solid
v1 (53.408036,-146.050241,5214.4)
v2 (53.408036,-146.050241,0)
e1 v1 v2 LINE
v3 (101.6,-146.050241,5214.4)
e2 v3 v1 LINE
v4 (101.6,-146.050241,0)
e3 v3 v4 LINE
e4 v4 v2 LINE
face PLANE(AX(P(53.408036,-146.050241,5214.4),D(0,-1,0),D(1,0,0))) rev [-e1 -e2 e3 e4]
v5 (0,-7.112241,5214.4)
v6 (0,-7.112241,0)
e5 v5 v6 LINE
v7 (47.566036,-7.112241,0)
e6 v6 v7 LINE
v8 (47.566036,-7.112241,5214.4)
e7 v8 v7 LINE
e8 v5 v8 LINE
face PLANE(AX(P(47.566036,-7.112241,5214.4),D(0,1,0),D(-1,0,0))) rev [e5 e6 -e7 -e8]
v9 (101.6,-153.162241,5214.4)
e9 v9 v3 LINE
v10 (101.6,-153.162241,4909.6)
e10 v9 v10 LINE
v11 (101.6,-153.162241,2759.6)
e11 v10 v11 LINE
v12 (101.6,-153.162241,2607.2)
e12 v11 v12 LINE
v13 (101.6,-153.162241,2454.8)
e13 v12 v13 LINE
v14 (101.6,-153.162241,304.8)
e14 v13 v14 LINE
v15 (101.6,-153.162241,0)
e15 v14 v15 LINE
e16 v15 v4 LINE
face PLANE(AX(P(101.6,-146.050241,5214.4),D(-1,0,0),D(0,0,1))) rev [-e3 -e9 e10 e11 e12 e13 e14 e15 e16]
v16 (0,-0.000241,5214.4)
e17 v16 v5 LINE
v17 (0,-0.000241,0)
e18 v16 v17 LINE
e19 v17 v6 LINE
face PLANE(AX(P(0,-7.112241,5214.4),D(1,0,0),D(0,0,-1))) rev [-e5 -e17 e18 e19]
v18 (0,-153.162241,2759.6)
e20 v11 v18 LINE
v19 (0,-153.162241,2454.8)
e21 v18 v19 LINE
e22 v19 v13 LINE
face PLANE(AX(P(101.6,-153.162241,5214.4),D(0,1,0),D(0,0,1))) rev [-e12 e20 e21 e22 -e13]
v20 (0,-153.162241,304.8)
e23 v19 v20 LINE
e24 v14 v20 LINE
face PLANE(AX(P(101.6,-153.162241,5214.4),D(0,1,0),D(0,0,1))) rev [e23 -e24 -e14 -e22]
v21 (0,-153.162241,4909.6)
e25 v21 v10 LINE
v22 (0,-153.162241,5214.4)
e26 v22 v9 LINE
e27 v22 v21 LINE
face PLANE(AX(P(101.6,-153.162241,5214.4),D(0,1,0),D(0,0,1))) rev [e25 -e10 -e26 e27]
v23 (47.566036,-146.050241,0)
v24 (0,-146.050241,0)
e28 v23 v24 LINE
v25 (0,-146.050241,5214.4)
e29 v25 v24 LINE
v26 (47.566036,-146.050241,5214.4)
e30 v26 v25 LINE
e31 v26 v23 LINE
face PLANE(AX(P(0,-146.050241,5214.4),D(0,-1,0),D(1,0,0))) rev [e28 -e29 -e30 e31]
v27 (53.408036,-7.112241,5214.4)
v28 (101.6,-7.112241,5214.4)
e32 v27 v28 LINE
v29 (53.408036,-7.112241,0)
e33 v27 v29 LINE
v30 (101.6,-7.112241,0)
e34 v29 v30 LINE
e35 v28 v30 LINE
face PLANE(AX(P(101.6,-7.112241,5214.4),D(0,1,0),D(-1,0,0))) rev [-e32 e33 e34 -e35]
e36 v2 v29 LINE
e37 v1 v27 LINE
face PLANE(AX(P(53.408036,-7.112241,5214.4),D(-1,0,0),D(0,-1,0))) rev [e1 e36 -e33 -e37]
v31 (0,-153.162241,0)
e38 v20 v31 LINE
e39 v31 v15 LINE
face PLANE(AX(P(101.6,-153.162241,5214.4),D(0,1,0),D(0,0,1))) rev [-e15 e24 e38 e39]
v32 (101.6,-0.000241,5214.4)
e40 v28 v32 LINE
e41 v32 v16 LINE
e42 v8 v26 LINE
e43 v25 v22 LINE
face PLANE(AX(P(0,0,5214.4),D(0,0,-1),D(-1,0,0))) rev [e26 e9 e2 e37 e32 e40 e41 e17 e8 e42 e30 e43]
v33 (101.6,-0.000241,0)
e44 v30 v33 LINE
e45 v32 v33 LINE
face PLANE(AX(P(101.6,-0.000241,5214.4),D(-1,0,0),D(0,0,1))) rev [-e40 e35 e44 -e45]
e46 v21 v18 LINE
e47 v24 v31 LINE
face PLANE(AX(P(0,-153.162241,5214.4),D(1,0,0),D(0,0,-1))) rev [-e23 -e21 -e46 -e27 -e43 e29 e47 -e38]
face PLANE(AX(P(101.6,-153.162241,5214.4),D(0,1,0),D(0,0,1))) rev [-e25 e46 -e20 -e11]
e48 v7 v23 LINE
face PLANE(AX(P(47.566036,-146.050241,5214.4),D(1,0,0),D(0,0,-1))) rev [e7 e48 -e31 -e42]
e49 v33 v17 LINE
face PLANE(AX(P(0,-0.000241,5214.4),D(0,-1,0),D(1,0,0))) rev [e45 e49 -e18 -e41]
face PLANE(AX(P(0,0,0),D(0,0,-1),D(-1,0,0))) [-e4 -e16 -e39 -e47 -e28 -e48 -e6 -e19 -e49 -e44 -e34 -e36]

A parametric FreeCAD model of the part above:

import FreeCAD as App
import Part
import Sketcher

V = App.Vector
Q = App.Units.Quantity


def add_polygon(sketch, points):
    """Adds a closed chain of lines whose ends are joined by coincident constraints."""
    first, n = sketch.GeometryCount, len(points)
    for a, b in zip(points, points[1:] + points[:1]):
        sketch.addGeometry(Part.LineSegment(App.Vector(*a, 0), App.Vector(*b, 0)), False)
    for i in range(n):
        sketch.addConstraint(Sketcher.Constraint("Coincident", first + i, 2, first + (i + 1) % n, 1))

doc = App.newDocument("Part")
body = doc.addObject("PartDesign::Body", "Body")

# Sketch on XY plane
sketch1 = doc.addObject("Sketcher::SketchObject", "Sketch")
body.addObject(sketch1)
sketch1.AttachmentSupport = (doc.XY_Plane, [""])
sketch1.MapMode = "FlatFace"
add_polygon(sketch1, [(102, 0), (0, 0), (0, -7), (48, -7), (48, -146), (0, -146), (0, -153), (102, -153), (102, -146), (53, -146), (53, -7), (102, -7)])  # lines 0-11
sketch1.addConstraint(Sketcher.Constraint("Horizontal", 0))
sketch1.addConstraint(Sketcher.Constraint("Vertical", 1))
sketch1.addConstraint(Sketcher.Constraint("Horizontal", 2))
sketch1.addConstraint(Sketcher.Constraint("Vertical", 3))
sketch1.addConstraint(Sketcher.Constraint("Horizontal", 4))
sketch1.addConstraint(Sketcher.Constraint("Vertical", 5))
sketch1.addConstraint(Sketcher.Constraint("Horizontal", 6))
sketch1.addConstraint(Sketcher.Constraint("Vertical", 7))
sketch1.addConstraint(Sketcher.Constraint("Horizontal", 8))
sketch1.addConstraint(Sketcher.Constraint("Vertical", 9))
sketch1.addConstraint(Sketcher.Constraint("Horizontal", 10))
sketch1.addConstraint(Sketcher.Constraint("Vertical", 11))
sketch1.addConstraint(Sketcher.Constraint("PointOnObject", 0, 2, -2))
sketch1.addConstraint(Sketcher.Constraint("PointOnObject", 4, 2, -2))
sketch1.addConstraint(Sketcher.Constraint("Horizontal", 4, 2, 7, 2))
sketch1.addConstraint(Sketcher.Constraint("Horizontal", 2, 2, 9, 2))
sketch1.addConstraint(Sketcher.Constraint("Vertical", 7, 2, 10, 2))
sketch1.addConstraint(Sketcher.Constraint("Equal", 1, 5))
sketch1.addConstraint(Sketcher.Constraint("DistanceX", 0, 2, 0, 1, Q("4 in")))
sketch1.addConstraint(Sketcher.Constraint("DistanceY", 1, 2, 1, 1, Q("0.28 in")))
sketch1.addConstraint(Sketcher.Constraint("DistanceY", 3, 2, 3, 1, Q("5.47 in")))
sketch1.addConstraint(Sketcher.Constraint("DistanceX", 3, 2, 8, 2, Q("0.23 in")))
sketch1.addConstraint(Sketcher.Constraint("DistanceX", 2, 1, 2, 2, Q("47.566036 mm")))
sketch1.addConstraint(Sketcher.Constraint("DistanceY", 0, 2, -1, 1, Q("0.000241 mm")))
pad1 = doc.addObject("PartDesign::Pad", "Pad")
body.addObject(pad1)
pad1.Profile = sketch1
pad1.Length = 5214.4

doc.recompute()
